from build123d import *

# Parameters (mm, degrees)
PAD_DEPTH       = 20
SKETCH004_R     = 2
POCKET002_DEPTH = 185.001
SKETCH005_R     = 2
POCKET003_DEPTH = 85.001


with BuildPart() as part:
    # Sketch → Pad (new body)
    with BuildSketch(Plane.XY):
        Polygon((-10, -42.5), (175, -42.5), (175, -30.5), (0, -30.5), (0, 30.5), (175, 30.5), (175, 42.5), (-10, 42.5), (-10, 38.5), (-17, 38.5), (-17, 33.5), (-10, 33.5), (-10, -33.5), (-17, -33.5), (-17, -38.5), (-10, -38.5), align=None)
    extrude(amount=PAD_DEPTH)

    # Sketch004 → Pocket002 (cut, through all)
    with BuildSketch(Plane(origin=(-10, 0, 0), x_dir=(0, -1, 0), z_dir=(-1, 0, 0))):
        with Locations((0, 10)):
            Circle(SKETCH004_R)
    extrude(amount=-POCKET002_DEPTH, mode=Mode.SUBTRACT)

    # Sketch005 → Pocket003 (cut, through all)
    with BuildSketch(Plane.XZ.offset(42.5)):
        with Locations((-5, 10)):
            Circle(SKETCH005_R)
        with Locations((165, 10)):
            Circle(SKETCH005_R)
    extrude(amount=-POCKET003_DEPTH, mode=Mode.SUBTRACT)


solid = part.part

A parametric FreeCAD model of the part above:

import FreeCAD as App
import Part
import Sketcher

V = App.Vector
Q = App.Units.Quantity

doc = App.newDocument("Part")
body = doc.addObject("PartDesign::Body", "Body")

sketch1 = body.newObject("Sketcher::SketchObject", "Sketch")
sketch1.AttachmentSupport = (doc.getObject("XY_Plane"), [""])
sketch1.MapMode = "FlatFace"
sketch1.addGeometry(Part.LineSegment(V(-10, -42.5, 0), V(175, -42.5, 0)), False)
sketch1.addGeometry(Part.LineSegment(V(175, -42.5, 0), V(175, -30.5, 0)), False)
sketch1.addGeometry(Part.LineSegment(V(175, -30.5, 0), V(0, -30.5, 0)), False)
sketch1.addGeometry(Part.LineSegment(V(0, -30.5, 0), V(0, 30.5, 0)), False)
sketch1.addGeometry(Part.LineSegment(V(0, 30.5, 0), V(175, 30.5, 0)), False)
sketch1.addGeometry(Part.LineSegment(V(175, 30.5, 0), V(175, 42.5, 0)), False)
sketch1.addGeometry(Part.LineSegment(V(175, 42.5, 0), V(-10, 42.5, 0)), False)
sketch1.addGeometry(Part.LineSegment(V(-10, 42.5, 0), V(-10, 38.5, 0)), False)
sketch1.addGeometry(Part.LineSegment(V(-10, 38.5, 0), V(-17, 38.5, 0)), False)
sketch1.addGeometry(Part.LineSegment(V(-17, 38.5, 0), V(-17, 33.5, 0)), False)
sketch1.addGeometry(Part.LineSegment(V(-17, 33.5, 0), V(-10, 33.5, 0)), False)
sketch1.addGeometry(Part.LineSegment(V(-10, 33.5, 0), V(-10, -33.5, 0)), False)
sketch1.addGeometry(Part.LineSegment(V(-10, -33.5, 0), V(-17, -33.5, 0)), False)
sketch1.addGeometry(Part.LineSegment(V(-17, -33.5, 0), V(-17, -38.5, 0)), False)
sketch1.addGeometry(Part.LineSegment(V(-17, -38.5, 0), V(-10, -38.5, 0)), False)
sketch1.addGeometry(Part.LineSegment(V(-10, -38.5, 0), V(-10, -42.5, 0)), False)
sketch1.addConstraint(Sketcher.Constraint("Coincident", 0, 2, 1, 1))
sketch1.addConstraint(Sketcher.Constraint("Coincident", 1, 2, 2, 1))
sketch1.addConstraint(Sketcher.Constraint("Coincident", 2, 2, 3, 1))
sketch1.addConstraint(Sketcher.Constraint("Coincident", 3, 2, 4, 1))
sketch1.addConstraint(Sketcher.Constraint("Coincident", 4, 2, 5, 1))
sketch1.addConstraint(Sketcher.Constraint("Coincident", 5, 2, 6, 1))
sketch1.addConstraint(Sketcher.Constraint("Coincident", 6, 2, 7, 1))
sketch1.addConstraint(Sketcher.Constraint("Coincident", 7, 2, 8, 1))
sketch1.addConstraint(Sketcher.Constraint("Coincident", 8, 2, 9, 1))
sketch1.addConstraint(Sketcher.Constraint("Coincident", 9, 2, 10, 1))
sketch1.addConstraint(Sketcher.Constraint("Coincident", 10, 2, 11, 1))
sketch1.addConstraint(Sketcher.Constraint("Coincident", 11, 2, 12, 1))
sketch1.addConstraint(Sketcher.Constraint("Coincident", 12, 2, 13, 1))
sketch1.addConstraint(Sketcher.Constraint("Coincident", 13, 2, 14, 1))
sketch1.addConstraint(Sketcher.Constraint("Coincident", 14, 2, 15, 1))
sketch1.addConstraint(Sketcher.Constraint("Coincident", 15, 2, 0, 1))
sketch1.addConstraint(Sketcher.Constraint("Horizontal", 0))
sketch1.addConstraint(Sketcher.Constraint("Vertical", 1))
sketch1.addConstraint(Sketcher.Constraint("Horizontal", 2))
sketch1.addConstraint(Sketcher.Constraint("Vertical", 3))
sketch1.addConstraint(Sketcher.Constraint("Horizontal", 4))
sketch1.addConstraint(Sketcher.Constraint("Vertical", 5))
sketch1.addConstraint(Sketcher.Constraint("Horizontal", 6))
sketch1.addConstraint(Sketcher.Constraint("Vertical", 7))
sketch1.addConstraint(Sketcher.Constraint("Horizontal", 8))
sketch1.addConstraint(Sketcher.Constraint("Vertical", 9))
sketch1.addConstraint(Sketcher.Constraint("Horizontal", 10))
sketch1.addConstraint(Sketcher.Constraint("Vertical", 11))
sketch1.addConstraint(Sketcher.Constraint("Horizontal", 12))
sketch1.addConstraint(Sketcher.Constraint("Vertical", 13))
sketch1.addConstraint(Sketcher.Constraint("Horizontal", 14))
sketch1.addConstraint(Sketcher.Constraint("Vertical", 15))
sketch1.addConstraint(Sketcher.Constraint("Symmetric", 2, 2, 3, 2, -1, 1))
sketch1.addConstraint(Sketcher.Constraint("Symmetric", 0, 2, 5, 2, -1))
sketch1.addConstraint(Sketcher.Constraint("Symmetric", 9, 2, 12, 2, -1))
sketch1.addConstraint(Sketcher.Constraint("Symmetric", 7, 2, 14, 2, -1))
sketch1.addConstraint(Sketcher.Constraint("Vertical", 7, 2, 10, 2))
sketch1.addConstraint(Sketcher.Constraint("DistanceX", 0, 1, 0, 2, Q("185 mm")))
sketch1.addConstraint(Sketcher.Constraint("DistanceX", 2, 2, 2, 1, Q("175 mm")))
sketch1.addConstraint(Sketcher.Constraint("DistanceX", 8, 2, 8, 1, Q("7 mm")))
sketch1.addConstraint(Sketcher.Constraint("DistanceY", 1, 1, 1, 2, Q("12 mm")))
sketch1.addConstraint(Sketcher.Constraint("DistanceY", 3, 1, 3, 2, Q("61 mm")))
sketch1.addConstraint(Sketcher.Constraint("DistanceY", 7, 2, 7, 1, Q("4 mm")))
sketch1.addConstraint(Sketcher.Constraint("DistanceY", 9, 2, 9, 1, Q("5 mm")))
pad1 = body.newObject("PartDesign::Pad", "Pad")
pad1.Profile = sketch1
pad1.Length = 20

sketch2 = body.newObject("Sketcher::SketchObject", "Sketch001")
sketch2.AttachmentSupport = (doc.getObject("YZ_Plane"), [""])
sketch2.MapMode = "FlatFace"
sketch2.AttachmentOffset = App.Placement(V(0, 0, -10), App.Rotation())
sketch2.addGeometry(Part.Circle(V(0, 10, 0), V(0, 0, 1), 2), False)
sketch2.addConstraint(Sketcher.Constraint("PointOnObject", 0, 3, -2))
sketch2.addConstraint(Sketcher.Constraint("Diameter", 0, Q("4 mm")))
sketch2.addConstraint(Sketcher.Constraint("DistanceY", -1, 1, 0, 3, Q("10 mm")))
pocket1 = body.newObject("PartDesign::Pocket", "Pocket")
pocket1.Profile = sketch2
pocket1.Type = "ThroughAll"
pocket1.Reversed = True

sketch3 = body.newObject("Sketcher::SketchObject", "Sketch002")
sketch3.AttachmentSupport = (doc.getObject("XZ_Plane"), [""])
sketch3.MapMode = "FlatFace"
sketch3.AttachmentOffset = App.Placement(V(0, 0, 42.5), App.Rotation())
sketch3.addGeometry(Part.Circle(V(-5, 10, 0), V(0, 0, 1), 2), False)
sketch3.addGeometry(Part.Circle(V(165, 10, 0), V(0, 0, 1), 2), False)
sketch3.addConstraint(Sketcher.Constraint("Equal", 0, 1))
sketch3.addConstraint(Sketcher.Constraint("Horizontal", 0, 3, 1, 3))
sketch3.addConstraint(Sketcher.Constraint("Diameter", 0, Q("4 mm")))
sketch3.addConstraint(Sketcher.Constraint("DistanceX", 0, 3, -1, 1, Q("5 mm")))
sketch3.addConstraint(Sketcher.Constraint("DistanceY", -1, 1, 0, 3, Q("10 mm")))
sketch3.addConstraint(Sketcher.Constraint("DistanceX", -1, 1, 1, 3, Q("165 mm")))
pocket2 = body.newObject("PartDesign::Pocket", "Pocket001")
pocket2.Profile = sketch3
pocket2.Type = "ThroughAll"

doc.recompute()
